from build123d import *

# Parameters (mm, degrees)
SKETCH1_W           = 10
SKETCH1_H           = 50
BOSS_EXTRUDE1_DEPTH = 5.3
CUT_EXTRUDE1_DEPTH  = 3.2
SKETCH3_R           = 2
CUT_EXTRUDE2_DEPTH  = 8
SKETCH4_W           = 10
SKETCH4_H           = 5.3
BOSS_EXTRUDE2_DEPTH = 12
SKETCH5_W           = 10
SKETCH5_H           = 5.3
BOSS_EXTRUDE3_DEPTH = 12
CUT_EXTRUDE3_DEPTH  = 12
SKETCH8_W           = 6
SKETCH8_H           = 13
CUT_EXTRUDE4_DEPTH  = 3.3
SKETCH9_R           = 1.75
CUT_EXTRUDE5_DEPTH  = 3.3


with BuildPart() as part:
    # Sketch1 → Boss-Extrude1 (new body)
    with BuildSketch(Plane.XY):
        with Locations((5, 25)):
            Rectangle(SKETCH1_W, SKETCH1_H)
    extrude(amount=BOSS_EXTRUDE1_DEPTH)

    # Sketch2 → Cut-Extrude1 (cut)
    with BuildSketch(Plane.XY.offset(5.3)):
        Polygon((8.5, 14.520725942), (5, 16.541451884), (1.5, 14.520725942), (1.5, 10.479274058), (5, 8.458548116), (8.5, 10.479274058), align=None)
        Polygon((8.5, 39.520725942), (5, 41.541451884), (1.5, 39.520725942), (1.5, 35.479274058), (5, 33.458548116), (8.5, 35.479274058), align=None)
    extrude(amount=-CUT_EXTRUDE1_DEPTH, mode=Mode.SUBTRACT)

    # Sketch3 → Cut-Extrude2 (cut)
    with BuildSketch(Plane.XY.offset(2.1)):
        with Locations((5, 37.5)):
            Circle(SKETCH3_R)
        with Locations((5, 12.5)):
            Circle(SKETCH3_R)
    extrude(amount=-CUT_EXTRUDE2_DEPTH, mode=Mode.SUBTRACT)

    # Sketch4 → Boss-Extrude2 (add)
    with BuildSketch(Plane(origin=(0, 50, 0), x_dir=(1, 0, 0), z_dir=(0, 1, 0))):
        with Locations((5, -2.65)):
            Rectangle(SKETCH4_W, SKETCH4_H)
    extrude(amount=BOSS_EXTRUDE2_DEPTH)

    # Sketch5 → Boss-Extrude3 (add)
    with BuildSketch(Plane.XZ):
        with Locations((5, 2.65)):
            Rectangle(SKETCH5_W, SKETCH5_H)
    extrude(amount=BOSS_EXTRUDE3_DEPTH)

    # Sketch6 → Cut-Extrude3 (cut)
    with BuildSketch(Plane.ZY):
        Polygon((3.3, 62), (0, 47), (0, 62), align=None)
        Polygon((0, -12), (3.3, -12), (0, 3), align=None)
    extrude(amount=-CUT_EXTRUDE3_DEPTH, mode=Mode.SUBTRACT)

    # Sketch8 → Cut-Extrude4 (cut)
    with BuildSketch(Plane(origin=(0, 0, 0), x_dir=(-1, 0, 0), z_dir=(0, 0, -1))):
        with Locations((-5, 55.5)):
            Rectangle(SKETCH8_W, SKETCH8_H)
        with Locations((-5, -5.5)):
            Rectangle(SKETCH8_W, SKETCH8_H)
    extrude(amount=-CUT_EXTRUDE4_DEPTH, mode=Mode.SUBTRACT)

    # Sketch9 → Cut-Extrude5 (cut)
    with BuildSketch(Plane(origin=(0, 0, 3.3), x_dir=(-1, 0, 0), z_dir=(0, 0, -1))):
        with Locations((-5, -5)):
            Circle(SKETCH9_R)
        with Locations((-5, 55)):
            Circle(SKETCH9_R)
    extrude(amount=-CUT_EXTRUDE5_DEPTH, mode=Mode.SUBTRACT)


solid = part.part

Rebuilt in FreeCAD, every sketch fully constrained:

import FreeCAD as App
import Part
import Sketcher

V = App.Vector
Q = App.Units.Quantity

doc = App.newDocument("Part")
params = doc.addObject("Spreadsheet::Sheet", "Params")
for row, (alias, value) in enumerate([
    ("sketch1_width", "10 mm"),
    ("sketch1_height", "50 mm"),
    ("pad1_length", "5.3 mm"),
    ("pocket1_length", "3.2 mm"),
    ("sketch3_diameter", "4 mm"),
    ("pocket2_length", "8 mm"),
    ("sketch4_width", "10 mm"),
    ("sketch4_height", "5.3 mm"),
    ("pad2_length", "12 mm"),
    ("sketch5_width", "10 mm"),
    ("sketch5_height", "5.3 mm"),
    ("pad3_length", "12 mm"),
    ("sketch6_width", "15 mm"),
    ("sketch6_height", "3.3 mm"),
    ("pocket3_length", "12 mm"),
    ("sketch7_width", "6 mm"),
    ("sketch7_height", "13 mm"),
    ("pocket4_length", "3.3 mm"),
    ("sketch8_diameter", "3.5 mm"),
    ("pocket5_length", "3.3 mm"),
], start=1):
    params.set(f"A{row}", alias)
    params.set(f"B{row}", "=" + value)
    params.setAlias(f"B{row}", alias)

body = doc.addObject("PartDesign::Body", "Body")

# Sketch on XY plane
sketch1 = body.newObject("Sketcher::SketchObject", "Sketch")
sketch1.AttachmentSupport = (doc.getObject("XY_Plane"), [""])
sketch1.MapMode = "FlatFace"
sketch1.addGeometry([
    Part.LineSegment(V(0, 50, 0), V(0, 0, 0)),
    Part.LineSegment(V(0, 0, 0), V(10, 0, 0)),
    Part.LineSegment(V(10, 0, 0), V(10, 50, 0)),
    Part.LineSegment(V(10, 50, 0), V(0, 50, 0)),
], False)
sketch1.addConstraint([
    Sketcher.Constraint("Coincident", 0, 2, 1, 1),
    Sketcher.Constraint("Coincident", 1, 2, 2, 1),
    Sketcher.Constraint("Coincident", 2, 2, 3, 1),
    Sketcher.Constraint("Coincident", 3, 2, 0, 1),
    Sketcher.Constraint("Vertical", 0),
    Sketcher.Constraint("Horizontal", 1),
    Sketcher.Constraint("Vertical", 2),
    Sketcher.Constraint("Horizontal", 3),
    Sketcher.Constraint("Coincident", 0, 2, -1, 1),
    Sketcher.Constraint("DistanceX", 1, 1, 1, 2, Q("10 mm")),
    Sketcher.Constraint("DistanceY", 0, 2, 0, 1, Q("50 mm")),
])
sketch1.setExpression("Constraints[9]", "Params.sketch1_width")
sketch1.setExpression("Constraints[10]", "Params.sketch1_height")
pad1 = body.newObject("PartDesign::Pad", "Pad")
pad1.Profile = sketch1
pad1.setExpression("Length", "Params.pad1_length")

# Sketch on XY plane
sketch2 = body.newObject("Sketcher::SketchObject", "Sketch001")
sketch2.AttachmentSupport = (doc.getObject("XY_Plane"), [""])
sketch2.MapMode = "FlatFace"
sketch2.AttachmentOffset = App.Placement(V(0, 0, 5.3), App.Rotation())
sketch2.addGeometry([
    Part.LineSegment(V(8.5, 14.5, 0), V(5, 16.5, 0)),  # 0
    Part.LineSegment(V(5, 16.5, 0), V(1.5, 14.5, 0)),  # 1
    Part.LineSegment(V(1.5, 14.5, 0), V(1.5, 10.5, 0)),  # 2
    Part.LineSegment(V(1.5, 10.5, 0), V(5, 8.5, 0)),  # 3
    Part.LineSegment(V(5, 8.5, 0), V(8.5, 10.5, 0)),  # 4
    Part.LineSegment(V(8.5, 10.5, 0), V(8.5, 14.5, 0)),  # 5
    Part.LineSegment(V(8.5, 39.5, 0), V(5, 41.5, 0)),  # 6
    Part.LineSegment(V(5, 41.5, 0), V(1.5, 39.5, 0)),  # 7
    Part.LineSegment(V(1.5, 39.5, 0), V(1.5, 35.5, 0)),  # 8
    Part.LineSegment(V(1.5, 35.5, 0), V(5, 33.5, 0)),  # 9
    Part.LineSegment(V(5, 33.5, 0), V(8.5, 35.5, 0)),  # 10
    Part.LineSegment(V(8.5, 35.5, 0), V(8.5, 39.5, 0)),  # 11
], False)
sketch2.addConstraint([
    Sketcher.Constraint("Coincident", 0, 2, 1, 1),
    Sketcher.Constraint("Coincident", 1, 2, 2, 1),
    Sketcher.Constraint("Coincident", 2, 2, 3, 1),
    Sketcher.Constraint("Coincident", 3, 2, 4, 1),
    Sketcher.Constraint("Coincident", 4, 2, 5, 1),
    Sketcher.Constraint("Coincident", 5, 2, 0, 1),
    Sketcher.Constraint("Coincident", 6, 2, 7, 1),
    Sketcher.Constraint("Coincident", 7, 2, 8, 1),
    Sketcher.Constraint("Coincident", 8, 2, 9, 1),
    Sketcher.Constraint("Coincident", 9, 2, 10, 1),
    Sketcher.Constraint("Coincident", 10, 2, 11, 1),
    Sketcher.Constraint("Coincident", 11, 2, 6, 1),
    Sketcher.Constraint("Vertical", 2),
    Sketcher.Constraint("Vertical", 5),
    Sketcher.Constraint("Vertical", 8),
    Sketcher.Constraint("Vertical", 11),
    Sketcher.Constraint("Parallel", 0, 3),
    Sketcher.Constraint("Parallel", 1, 4),
    Sketcher.Constraint("Parallel", 3, 6),
    Sketcher.Constraint("Parallel", 4, 7),
    Sketcher.Constraint("Parallel", 6, 9),
    Sketcher.Constraint("Parallel", 7, 10),
    Sketcher.Constraint("Horizontal", 2, 2, 4, 2),
    Sketcher.Constraint("Horizontal", 1, 2, 5, 2),
    Sketcher.Constraint("Horizontal", 8, 2, 10, 2),
    Sketcher.Constraint("Horizontal", 7, 2, 11, 2),
    Sketcher.Constraint("Vertical", 0, 2, 3, 2),
    Sketcher.Constraint("Vertical", 3, 2, 6, 2),
    Sketcher.Constraint("Vertical", 2, 2, 7, 2),
    Sketcher.Constraint("Equal", 5, 8),
    Sketcher.Constraint("Angle", 0, Q("150 deg")),
    Sketcher.Constraint("DistanceX", -1, 1, 0, 2, Q("5 mm")),
    Sketcher.Constraint("DistanceX", 2, 2, 4, 2, Q("7 mm")),
    Sketcher.Constraint("DistanceY", 0, 2, 6, 2, Q("25 mm")),
    Sketcher.Constraint("DistanceY", 2, 2, 2, 1, Q("4.041452 mm")),
    Sketcher.Constraint("DistanceY", -1, 1, 0, 2, Q("16.541452 mm")),
])
pocket1 = body.newObject("PartDesign::Pocket", "Pocket")
pocket1.Profile = sketch2
pocket1.setExpression("Length", "Params.pocket1_length")

# Sketch on XY plane
sketch3 = body.newObject("Sketcher::SketchObject", "Sketch002")
sketch3.AttachmentSupport = (doc.getObject("XY_Plane"), [""])
sketch3.MapMode = "FlatFace"
sketch3.AttachmentOffset = App.Placement(V(0, 0, 2.1), App.Rotation())
sketch3.addGeometry([
    Part.Circle(V(5, 37.5, 0), V(0, 0, 1), 2),
    Part.Circle(V(5, 12.5, 0), V(0, 0, 1), 2),
], False)
sketch3.addConstraint([
    Sketcher.Constraint("Equal", 0, 1),
    Sketcher.Constraint("Vertical", 0, 3, 1, 3),
    Sketcher.Constraint("Diameter", 0, Q("4 mm")),
    Sketcher.Constraint("DistanceX", -1, 1, 0, 3, Q("5 mm")),
    Sketcher.Constraint("DistanceY", 1, 3, 0, 3, Q("25 mm")),
    Sketcher.Constraint("DistanceY", -1, 1, 0, 3, Q("37.5 mm")),
])
sketch3.setExpression("Constraints[2]", "Params.sketch3_diameter")
pocket2 = body.newObject("PartDesign::Pocket", "Pocket001")
pocket2.Profile = sketch3
pocket2.setExpression("Length", "Params.pocket2_length")

# Sketch on XZ plane
sketch4 = body.newObject("Sketcher::SketchObject", "Sketch003")
sketch4.AttachmentSupport = (doc.getObject("XZ_Plane"), [""])
sketch4.MapMode = "FlatFace"
sketch4.AttachmentOffset = App.Placement(V(0, 0, -50), App.Rotation())
sketch4.addGeometry([
    Part.LineSegment(V(0, 0, 0), V(0, 5, 0)),
    Part.LineSegment(V(0, 5, 0), V(10, 5, 0)),
    Part.LineSegment(V(10, 5, 0), V(10, 0, 0)),
    Part.LineSegment(V(10, 0, 0), V(0, 0, 0)),
], False)
sketch4.addConstraint([
    Sketcher.Constraint("Coincident", 0, 2, 1, 1),
    Sketcher.Constraint("Coincident", 1, 2, 2, 1),
    Sketcher.Constraint("Coincident", 2, 2, 3, 1),
    Sketcher.Constraint("Coincident", 3, 2, 0, 1),
    Sketcher.Constraint("Vertical", 0),
    Sketcher.Constraint("Horizontal", 1),
    Sketcher.Constraint("Vertical", 2),
    Sketcher.Constraint("Horizontal", 3),
    Sketcher.Constraint("Coincident", 3, 2, -1, 1),
    Sketcher.Constraint("DistanceX", 1, 1, 1, 2, Q("10 mm")),
    Sketcher.Constraint("DistanceY", 0, 1, 0, 2, Q("5.3 mm")),
])
sketch4.setExpression("Constraints[9]", "Params.sketch4_width")
sketch4.setExpression("Constraints[10]", "Params.sketch4_height")
pad2 = body.newObject("PartDesign::Pad", "Pad001")
pad2.Profile = sketch4
pad2.setExpression("Length", "Params.pad2_length")
pad2.Reversed = True

# Sketch on XZ plane
sketch5 = body.newObject("Sketcher::SketchObject", "Sketch004")
sketch5.AttachmentSupport = (doc.getObject("XZ_Plane"), [""])
sketch5.MapMode = "FlatFace"
sketch5.addGeometry([
    Part.LineSegment(V(0, 5, 0), V(0, 0, 0)),
    Part.LineSegment(V(0, 0, 0), V(10, 0, 0)),
    Part.LineSegment(V(10, 0, 0), V(10, 5, 0)),
    Part.LineSegment(V(10, 5, 0), V(0, 5, 0)),
], False)
sketch5.addConstraint([
    Sketcher.Constraint("Coincident", 0, 2, 1, 1),
    Sketcher.Constraint("Coincident", 1, 2, 2, 1),
    Sketcher.Constraint("Coincident", 2, 2, 3, 1),
    Sketcher.Constraint("Coincident", 3, 2, 0, 1),
    Sketcher.Constraint("Vertical", 0),
    Sketcher.Constraint("Horizontal", 1),
    Sketcher.Constraint("Vertical", 2),
    Sketcher.Constraint("Horizontal", 3),
    Sketcher.Constraint("Coincident", 0, 2, -1, 1),
    Sketcher.Constraint("DistanceX", 1, 1, 1, 2, Q("10 mm")),
    Sketcher.Constraint("DistanceY", 0, 2, 0, 1, Q("5.3 mm")),
])
sketch5.setExpression("Constraints[9]", "Params.sketch5_width")
sketch5.setExpression("Constraints[10]", "Params.sketch5_height")
pad3 = body.newObject("PartDesign::Pad", "Pad002")
pad3.Profile = sketch5
pad3.setExpression("Length", "Params.pad3_length")

# Sketch on YZ plane
sketch6 = body.newObject("Sketcher::SketchObject", "Sketch005")
sketch6.AttachmentSupport = (doc.getObject("YZ_Plane"), [""])
sketch6.MapMode = "FlatFace"
sketch6.addGeometry([
    Part.LineSegment(V(47, 0, 0), V(62, 3.3, 0)),  # 0
    Part.LineSegment(V(62, 3.3, 0), V(62, 0, 0)),  # 1
    Part.LineSegment(V(62, 0, 0), V(47, 0, 0)),  # 2
    Part.LineSegment(V(-12, 0, 0), V(-12, 3.3, 0)),  # 3
    Part.LineSegment(V(-12, 3.3, 0), V(3, 0, 0)),  # 4
    Part.LineSegment(V(3, 0, 0), V(-12, 0, 0)),  # 5
], False)
sketch6.addConstraint([
    Sketcher.Constraint("Coincident", 0, 2, 1, 1),
    Sketcher.Constraint("Coincident", 1, 2, 2, 1),
    Sketcher.Constraint("Coincident", 2, 2, 0, 1),
    Sketcher.Constraint("Coincident", 3, 2, 4, 1),
    Sketcher.Constraint("Coincident", 4, 2, 5, 1),
    Sketcher.Constraint("Coincident", 5, 2, 3, 1),
    Sketcher.Constraint("Vertical", 1),
    Sketcher.Constraint("Horizontal", 2),
    Sketcher.Constraint("Vertical", 3),
    Sketcher.Constraint("Horizontal", 5),
    Sketcher.Constraint("PointOnObject", 1, 2, -1),
    Sketcher.Constraint("PointOnObject", 4, 2, -1),
    Sketcher.Constraint("Horizontal", 0, 2, 3, 2),
    Sketcher.Constraint("Equal", 2, 5),
    Sketcher.Constraint("DistanceX", 2, 2, 2, 1, Q("15 mm")),
    Sketcher.Constraint("DistanceY", 1, 2, 1, 1, Q("3.3 mm")),
    Sketcher.Constraint("DistanceX", -1, 1, 0, 2, Q("62 mm")),
    Sketcher.Constraint("DistanceX", 3, 2, -1, 1, Q("12 mm")),
])
sketch6.setExpression("Constraints[14]", "Params.sketch6_width")
sketch6.setExpression("Constraints[15]", "Params.sketch6_height")
pocket3 = body.newObject("PartDesign::Pocket", "Pocket002")
pocket3.Profile = sketch6
pocket3.setExpression("Length", "Params.pocket3_length")
pocket3.Reversed = True

# Sketch on XY plane
sketch7 = body.newObject("Sketcher::SketchObject", "Sketch006")
sketch7.AttachmentSupport = (doc.getObject("XY_Plane"), [""])
sketch7.MapMode = "FlatFace"
sketch7.addGeometry([
    Part.LineSegment(V(8, 62, 0), V(8, 49, 0)),  # 0
    Part.LineSegment(V(8, 49, 0), V(2, 49, 0)),  # 1
    Part.LineSegment(V(2, 49, 0), V(2, 62, 0)),  # 2
    Part.LineSegment(V(2, 62, 0), V(8, 62, 0)),  # 3
    Part.LineSegment(V(8, 1, 0), V(8, -12, 0)),  # 4
    Part.LineSegment(V(8, -12, 0), V(2, -12, 0)),  # 5
    Part.LineSegment(V(2, -12, 0), V(2, 1, 0)),  # 6
    Part.LineSegment(V(2, 1, 0), V(8, 1, 0)),  # 7
], False)
sketch7.addConstraint([
    Sketcher.Constraint("Coincident", 0, 2, 1, 1),
    Sketcher.Constraint("Coincident", 1, 2, 2, 1),
    Sketcher.Constraint("Coincident", 2, 2, 3, 1),
    Sketcher.Constraint("Coincident", 3, 2, 0, 1),
    Sketcher.Constraint("Coincident", 4, 2, 5, 1),
    Sketcher.Constraint("Coincident", 5, 2, 6, 1),
    Sketcher.Constraint("Coincident", 6, 2, 7, 1),
    Sketcher.Constraint("Coincident", 7, 2, 4, 1),
    Sketcher.Constraint("Vertical", 0),
    Sketcher.Constraint("Horizontal", 1),
    Sketcher.Constraint("Vertical", 2),
    Sketcher.Constraint("Horizontal", 3),
    Sketcher.Constraint("Vertical", 4),
    Sketcher.Constraint("Horizontal", 5),
    Sketcher.Constraint("Vertical", 6),
    Sketcher.Constraint("Horizontal", 7),
    Sketcher.Constraint("Vertical", 3, 2, 4, 2),
    Sketcher.Constraint("Vertical", 2, 2, 5, 2),
    Sketcher.Constraint("Equal", 2, 4),
    Sketcher.Constraint("DistanceX", 1, 2, 1, 1, Q("6 mm")),
    Sketcher.Constraint("DistanceY", 0, 2, 0, 1, Q("13 mm")),
    Sketcher.Constraint("DistanceX", -1, 1, 0, 2, Q("8 mm")),
    Sketcher.Constraint("DistanceY", -1, 1, 0, 2, Q("49 mm")),
    Sketcher.Constraint("DistanceY", 4, 2, -1, 1, Q("12 mm")),
])
sketch7.setExpression("Constraints[19]", "Params.sketch7_width")
sketch7.setExpression("Constraints[20]", "Params.sketch7_height")
pocket4 = body.newObject("PartDesign::Pocket", "Pocket003")
pocket4.Profile = sketch7
pocket4.setExpression("Length", "Params.pocket4_length")
pocket4.Reversed = True

# Sketch on XY plane
sketch8 = body.newObject("Sketcher::SketchObject", "Sketch007")
sketch8.AttachmentSupport = (doc.getObject("XY_Plane"), [""])
sketch8.MapMode = "FlatFace"
sketch8.AttachmentOffset = App.Placement(V(0, 0, 3.3), App.Rotation())
sketch8.addGeometry([
    Part.Circle(V(5, -5, 0), V(0, 0, 1), 1.8),
    Part.Circle(V(5, 55, 0), V(0, 0, 1), 1.8),
], False)
sketch8.addConstraint([
    Sketcher.Constraint("Equal", 0, 1),
    Sketcher.Constraint("Vertical", 0, 3, 1, 3),
    Sketcher.Constraint("Diameter", 0, Q("3.5 mm")),
    Sketcher.Constraint("DistanceX", -1, 1, 0, 3, Q("5 mm")),
    Sketcher.Constraint("DistanceY", 0, 3, -1, 1, Q("5 mm")),
    Sketcher.Constraint("DistanceY", -1, 1, 1, 3, Q("55 mm")),
])
sketch8.setExpression("Constraints[2]", "Params.sketch8_diameter")
pocket5 = body.newObject("PartDesign::Pocket", "Pocket004")
pocket5.Profile = sketch8
pocket5.setExpression("Length", "Params.pocket5_length")
pocket5.Reversed = True

doc.recompute()
